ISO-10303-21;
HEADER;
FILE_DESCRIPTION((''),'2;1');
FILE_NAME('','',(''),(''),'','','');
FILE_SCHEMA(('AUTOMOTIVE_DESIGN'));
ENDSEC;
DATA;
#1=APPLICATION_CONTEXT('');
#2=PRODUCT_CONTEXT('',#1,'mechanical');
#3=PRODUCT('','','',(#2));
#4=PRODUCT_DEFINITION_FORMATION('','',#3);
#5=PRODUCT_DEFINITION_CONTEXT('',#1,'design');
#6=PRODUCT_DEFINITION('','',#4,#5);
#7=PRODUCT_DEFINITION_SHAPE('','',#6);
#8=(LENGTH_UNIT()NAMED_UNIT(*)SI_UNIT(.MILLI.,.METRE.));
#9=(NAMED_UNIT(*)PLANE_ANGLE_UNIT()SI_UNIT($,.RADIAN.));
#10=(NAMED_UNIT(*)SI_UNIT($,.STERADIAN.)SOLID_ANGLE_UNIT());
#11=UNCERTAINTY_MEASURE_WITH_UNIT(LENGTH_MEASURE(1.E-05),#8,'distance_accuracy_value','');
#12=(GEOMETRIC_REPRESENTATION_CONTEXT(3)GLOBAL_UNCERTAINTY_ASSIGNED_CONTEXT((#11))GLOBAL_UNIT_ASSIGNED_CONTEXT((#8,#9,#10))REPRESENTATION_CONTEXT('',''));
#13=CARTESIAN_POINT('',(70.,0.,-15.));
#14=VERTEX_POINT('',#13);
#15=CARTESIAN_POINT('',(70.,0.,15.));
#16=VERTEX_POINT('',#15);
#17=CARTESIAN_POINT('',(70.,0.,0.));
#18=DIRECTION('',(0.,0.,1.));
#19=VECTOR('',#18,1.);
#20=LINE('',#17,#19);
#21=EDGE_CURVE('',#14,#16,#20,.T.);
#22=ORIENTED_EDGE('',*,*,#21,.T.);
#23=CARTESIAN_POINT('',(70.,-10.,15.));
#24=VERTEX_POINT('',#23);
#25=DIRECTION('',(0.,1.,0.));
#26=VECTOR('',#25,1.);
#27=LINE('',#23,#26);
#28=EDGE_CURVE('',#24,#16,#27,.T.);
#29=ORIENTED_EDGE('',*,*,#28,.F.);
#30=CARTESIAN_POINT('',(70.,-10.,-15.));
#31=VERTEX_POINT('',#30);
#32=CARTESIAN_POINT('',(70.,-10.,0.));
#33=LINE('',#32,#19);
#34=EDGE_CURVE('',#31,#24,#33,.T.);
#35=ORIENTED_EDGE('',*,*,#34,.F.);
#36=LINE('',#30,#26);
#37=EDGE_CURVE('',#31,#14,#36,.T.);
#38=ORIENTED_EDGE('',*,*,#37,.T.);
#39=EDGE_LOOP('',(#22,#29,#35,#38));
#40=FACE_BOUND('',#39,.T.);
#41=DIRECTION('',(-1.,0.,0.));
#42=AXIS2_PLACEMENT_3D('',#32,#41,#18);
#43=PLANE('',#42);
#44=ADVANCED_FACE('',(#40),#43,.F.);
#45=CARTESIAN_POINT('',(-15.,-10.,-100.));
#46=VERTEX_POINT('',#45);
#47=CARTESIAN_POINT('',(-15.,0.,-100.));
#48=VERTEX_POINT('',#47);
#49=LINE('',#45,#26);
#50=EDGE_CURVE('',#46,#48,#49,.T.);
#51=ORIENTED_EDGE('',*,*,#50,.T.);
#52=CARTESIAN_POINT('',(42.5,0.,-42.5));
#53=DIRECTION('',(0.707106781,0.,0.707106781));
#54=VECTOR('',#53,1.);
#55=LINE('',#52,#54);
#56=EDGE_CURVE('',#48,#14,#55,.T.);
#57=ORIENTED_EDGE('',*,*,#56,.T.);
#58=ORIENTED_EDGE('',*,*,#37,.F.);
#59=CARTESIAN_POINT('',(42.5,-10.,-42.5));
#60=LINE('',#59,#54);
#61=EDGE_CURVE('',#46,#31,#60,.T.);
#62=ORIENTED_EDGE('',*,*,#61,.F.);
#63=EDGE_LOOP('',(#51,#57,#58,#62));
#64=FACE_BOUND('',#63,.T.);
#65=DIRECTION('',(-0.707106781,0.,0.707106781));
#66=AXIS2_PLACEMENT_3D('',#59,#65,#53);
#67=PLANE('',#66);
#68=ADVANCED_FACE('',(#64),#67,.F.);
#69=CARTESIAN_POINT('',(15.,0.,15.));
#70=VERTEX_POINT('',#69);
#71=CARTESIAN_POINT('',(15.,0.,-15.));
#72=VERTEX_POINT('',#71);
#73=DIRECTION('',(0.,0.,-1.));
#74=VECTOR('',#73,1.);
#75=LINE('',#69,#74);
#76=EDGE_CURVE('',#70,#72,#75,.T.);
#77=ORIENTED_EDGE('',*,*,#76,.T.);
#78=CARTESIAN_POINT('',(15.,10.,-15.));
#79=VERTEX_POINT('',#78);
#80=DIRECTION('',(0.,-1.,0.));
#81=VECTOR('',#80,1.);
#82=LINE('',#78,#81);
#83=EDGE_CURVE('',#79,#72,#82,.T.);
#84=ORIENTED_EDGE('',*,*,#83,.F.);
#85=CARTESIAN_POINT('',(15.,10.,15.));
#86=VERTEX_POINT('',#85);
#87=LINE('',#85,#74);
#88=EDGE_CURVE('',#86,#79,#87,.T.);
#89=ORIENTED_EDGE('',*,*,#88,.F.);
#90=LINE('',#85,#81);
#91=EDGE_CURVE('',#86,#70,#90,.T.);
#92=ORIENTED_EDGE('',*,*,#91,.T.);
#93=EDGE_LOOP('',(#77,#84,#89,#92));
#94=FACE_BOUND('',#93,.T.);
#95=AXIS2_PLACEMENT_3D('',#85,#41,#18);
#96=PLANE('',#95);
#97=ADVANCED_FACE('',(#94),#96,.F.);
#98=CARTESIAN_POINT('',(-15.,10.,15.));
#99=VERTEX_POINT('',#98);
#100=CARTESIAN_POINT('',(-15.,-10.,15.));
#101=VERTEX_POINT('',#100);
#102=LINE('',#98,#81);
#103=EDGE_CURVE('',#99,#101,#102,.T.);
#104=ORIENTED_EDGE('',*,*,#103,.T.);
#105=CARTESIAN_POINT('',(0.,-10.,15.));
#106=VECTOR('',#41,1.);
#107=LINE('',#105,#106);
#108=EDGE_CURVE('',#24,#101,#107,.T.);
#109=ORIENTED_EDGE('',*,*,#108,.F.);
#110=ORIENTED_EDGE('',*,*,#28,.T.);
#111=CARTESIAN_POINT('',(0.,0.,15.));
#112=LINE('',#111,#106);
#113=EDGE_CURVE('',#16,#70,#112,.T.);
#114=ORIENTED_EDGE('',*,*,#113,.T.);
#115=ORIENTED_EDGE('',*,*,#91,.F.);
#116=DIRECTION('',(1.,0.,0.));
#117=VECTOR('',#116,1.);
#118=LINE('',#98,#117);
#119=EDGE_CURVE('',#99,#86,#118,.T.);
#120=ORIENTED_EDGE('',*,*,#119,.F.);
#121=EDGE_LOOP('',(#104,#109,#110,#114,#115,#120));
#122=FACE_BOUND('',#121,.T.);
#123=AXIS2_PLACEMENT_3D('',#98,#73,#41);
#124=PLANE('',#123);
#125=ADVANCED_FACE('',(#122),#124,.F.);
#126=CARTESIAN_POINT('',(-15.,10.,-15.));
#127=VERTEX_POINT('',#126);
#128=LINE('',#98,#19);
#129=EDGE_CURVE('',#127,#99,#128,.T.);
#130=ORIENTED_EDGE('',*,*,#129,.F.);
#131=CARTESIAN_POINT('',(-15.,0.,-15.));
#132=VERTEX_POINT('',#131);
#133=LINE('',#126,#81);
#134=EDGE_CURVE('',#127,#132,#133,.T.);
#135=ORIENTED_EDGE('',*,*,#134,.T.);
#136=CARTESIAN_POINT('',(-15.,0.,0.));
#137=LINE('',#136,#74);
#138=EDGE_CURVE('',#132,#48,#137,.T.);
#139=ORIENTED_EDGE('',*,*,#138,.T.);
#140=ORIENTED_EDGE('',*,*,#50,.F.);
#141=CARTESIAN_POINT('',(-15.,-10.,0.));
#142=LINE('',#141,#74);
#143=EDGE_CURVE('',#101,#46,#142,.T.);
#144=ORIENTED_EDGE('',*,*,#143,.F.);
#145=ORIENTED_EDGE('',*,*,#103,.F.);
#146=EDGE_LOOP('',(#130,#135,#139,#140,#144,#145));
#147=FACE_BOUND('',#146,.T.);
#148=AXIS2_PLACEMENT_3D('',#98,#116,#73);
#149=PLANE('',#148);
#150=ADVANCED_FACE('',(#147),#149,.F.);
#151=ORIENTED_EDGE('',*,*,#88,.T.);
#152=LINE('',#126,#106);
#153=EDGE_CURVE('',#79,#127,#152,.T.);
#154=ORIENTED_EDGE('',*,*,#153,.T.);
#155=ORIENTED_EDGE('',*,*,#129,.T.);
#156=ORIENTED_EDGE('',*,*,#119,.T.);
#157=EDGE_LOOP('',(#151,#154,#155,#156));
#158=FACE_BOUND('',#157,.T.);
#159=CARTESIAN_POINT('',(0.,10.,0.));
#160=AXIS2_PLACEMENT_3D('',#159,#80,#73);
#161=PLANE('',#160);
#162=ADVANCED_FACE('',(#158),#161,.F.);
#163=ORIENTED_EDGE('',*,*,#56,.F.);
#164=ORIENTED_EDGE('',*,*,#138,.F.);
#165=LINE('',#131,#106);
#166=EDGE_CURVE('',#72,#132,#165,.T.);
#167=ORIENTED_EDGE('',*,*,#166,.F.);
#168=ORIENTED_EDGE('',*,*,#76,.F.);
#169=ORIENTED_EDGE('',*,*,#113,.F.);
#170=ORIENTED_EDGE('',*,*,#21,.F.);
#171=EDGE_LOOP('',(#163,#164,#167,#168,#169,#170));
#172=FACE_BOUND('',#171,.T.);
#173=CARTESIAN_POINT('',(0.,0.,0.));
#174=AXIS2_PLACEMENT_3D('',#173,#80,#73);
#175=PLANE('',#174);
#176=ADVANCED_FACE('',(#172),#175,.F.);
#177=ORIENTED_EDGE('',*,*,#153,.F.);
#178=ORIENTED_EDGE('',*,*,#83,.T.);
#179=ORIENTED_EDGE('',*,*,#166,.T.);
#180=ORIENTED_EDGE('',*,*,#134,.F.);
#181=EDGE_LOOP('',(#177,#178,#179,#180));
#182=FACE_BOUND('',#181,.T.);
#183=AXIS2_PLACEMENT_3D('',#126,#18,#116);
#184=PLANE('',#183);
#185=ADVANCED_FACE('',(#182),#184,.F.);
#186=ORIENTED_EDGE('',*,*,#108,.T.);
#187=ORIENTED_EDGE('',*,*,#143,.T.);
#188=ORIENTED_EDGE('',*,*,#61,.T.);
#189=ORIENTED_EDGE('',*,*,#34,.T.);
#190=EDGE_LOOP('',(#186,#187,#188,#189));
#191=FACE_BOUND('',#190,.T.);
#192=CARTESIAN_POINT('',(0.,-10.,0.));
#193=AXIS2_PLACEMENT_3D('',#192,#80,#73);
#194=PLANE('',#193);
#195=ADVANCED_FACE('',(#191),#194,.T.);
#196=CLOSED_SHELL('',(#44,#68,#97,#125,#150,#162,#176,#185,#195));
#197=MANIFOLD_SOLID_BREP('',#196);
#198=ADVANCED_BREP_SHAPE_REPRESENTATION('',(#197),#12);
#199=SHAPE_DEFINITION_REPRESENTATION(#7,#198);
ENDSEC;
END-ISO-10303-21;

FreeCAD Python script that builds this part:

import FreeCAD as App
import Part
import Sketcher
from FreeCAD import Vector

doc = App.newDocument("Part")
body = doc.addObject("PartDesign::Body", "Body")

sketch1 = body.newObject("Sketcher::SketchObject", "Sketch")
sketch1.AttachmentSupport = (doc.getObject("XZ_Plane"), [""])
sketch1.MapMode = "FlatFace"
sketch1.addGeometry([
    Part.LineSegment(Vector(-15, -15, 0), Vector(-15, 15, 0)),
    Part.LineSegment(Vector(-15, 15, 0), Vector(15, 15, 0)),
    Part.LineSegment(Vector(15, 15, 0), Vector(15, -15, 0)),
    Part.LineSegment(Vector(15, -15, 0), Vector(-15, -15, 0)),
], False)
sketch1.addConstraint([
    Sketcher.Constraint("Coincident", 0, 2, 1, 1),
    Sketcher.Constraint("Coincident", 1, 2, 2, 1),
    Sketcher.Constraint("Coincident", 2, 2, 3, 1),
    Sketcher.Constraint("Coincident", 3, 2, 0, 1),
    Sketcher.Constraint("Vertical", 0),
    Sketcher.Constraint("Horizontal", 1),
    Sketcher.Constraint("Vertical", 2),
    Sketcher.Constraint("Horizontal", 3),
    Sketcher.Constraint("Symmetric", 0, 2, 2, 2, -1, 1),
    Sketcher.Constraint("Equal", 3, 0),
    Sketcher.Constraint("DistanceX", 1, 1, 1, 2, 30.0),
])
pad1 = body.newObject("PartDesign::Pad", "Pad")
pad1.Profile = sketch1
pad1.Length = 10
pad1.Reversed = True

sketch2 = body.newObject("Sketcher::SketchObject", "Sketch001")
sketch2.AttachmentSupport = (doc.getObject("XZ_Plane"), [""])
sketch2.MapMode = "FlatFace"
sketch2.addGeometry([
    Part.LineSegment(Vector(-15, -100, 0), Vector(70, -15, 0)),
    Part.LineSegment(Vector(70, -15, 0), Vector(70, 15, 0)),
    Part.LineSegment(Vector(70, 15, 0), Vector(-15, 15, 0)),
    Part.LineSegment(Vector(-15, 15, 0), Vector(-15, -100, 0)),
], False)
sketch2.addConstraint([
    Sketcher.Constraint("Coincident", 0, 2, 1, 1),
    Sketcher.Constraint("Coincident", 1, 2, 2, 1),
    Sketcher.Constraint("Coincident", 2, 2, 3, 1),
    Sketcher.Constraint("Coincident", 3, 2, 0, 1),
    Sketcher.Constraint("Vertical", 1),
    Sketcher.Constraint("Horizontal", 2),
    Sketcher.Constraint("Vertical", 3),
    Sketcher.Constraint("DistanceX", 2, 2, 2, 1, 85.0),
    Sketcher.Constraint("DistanceY", 1, 1, 1, 2, 30.0),
    Sketcher.Constraint("DistanceY", 3, 2, 3, 1, 115.0),
    Sketcher.Constraint("DistanceX", -1, 1, 0, 2, 70.0),
    Sketcher.Constraint("DistanceY", 0, 2, -1, 1, 15.0),
])
pad2 = body.newObject("PartDesign::Pad", "Pad001")
pad2.Profile = sketch2
pad2.Length = 10

doc.recompute()
